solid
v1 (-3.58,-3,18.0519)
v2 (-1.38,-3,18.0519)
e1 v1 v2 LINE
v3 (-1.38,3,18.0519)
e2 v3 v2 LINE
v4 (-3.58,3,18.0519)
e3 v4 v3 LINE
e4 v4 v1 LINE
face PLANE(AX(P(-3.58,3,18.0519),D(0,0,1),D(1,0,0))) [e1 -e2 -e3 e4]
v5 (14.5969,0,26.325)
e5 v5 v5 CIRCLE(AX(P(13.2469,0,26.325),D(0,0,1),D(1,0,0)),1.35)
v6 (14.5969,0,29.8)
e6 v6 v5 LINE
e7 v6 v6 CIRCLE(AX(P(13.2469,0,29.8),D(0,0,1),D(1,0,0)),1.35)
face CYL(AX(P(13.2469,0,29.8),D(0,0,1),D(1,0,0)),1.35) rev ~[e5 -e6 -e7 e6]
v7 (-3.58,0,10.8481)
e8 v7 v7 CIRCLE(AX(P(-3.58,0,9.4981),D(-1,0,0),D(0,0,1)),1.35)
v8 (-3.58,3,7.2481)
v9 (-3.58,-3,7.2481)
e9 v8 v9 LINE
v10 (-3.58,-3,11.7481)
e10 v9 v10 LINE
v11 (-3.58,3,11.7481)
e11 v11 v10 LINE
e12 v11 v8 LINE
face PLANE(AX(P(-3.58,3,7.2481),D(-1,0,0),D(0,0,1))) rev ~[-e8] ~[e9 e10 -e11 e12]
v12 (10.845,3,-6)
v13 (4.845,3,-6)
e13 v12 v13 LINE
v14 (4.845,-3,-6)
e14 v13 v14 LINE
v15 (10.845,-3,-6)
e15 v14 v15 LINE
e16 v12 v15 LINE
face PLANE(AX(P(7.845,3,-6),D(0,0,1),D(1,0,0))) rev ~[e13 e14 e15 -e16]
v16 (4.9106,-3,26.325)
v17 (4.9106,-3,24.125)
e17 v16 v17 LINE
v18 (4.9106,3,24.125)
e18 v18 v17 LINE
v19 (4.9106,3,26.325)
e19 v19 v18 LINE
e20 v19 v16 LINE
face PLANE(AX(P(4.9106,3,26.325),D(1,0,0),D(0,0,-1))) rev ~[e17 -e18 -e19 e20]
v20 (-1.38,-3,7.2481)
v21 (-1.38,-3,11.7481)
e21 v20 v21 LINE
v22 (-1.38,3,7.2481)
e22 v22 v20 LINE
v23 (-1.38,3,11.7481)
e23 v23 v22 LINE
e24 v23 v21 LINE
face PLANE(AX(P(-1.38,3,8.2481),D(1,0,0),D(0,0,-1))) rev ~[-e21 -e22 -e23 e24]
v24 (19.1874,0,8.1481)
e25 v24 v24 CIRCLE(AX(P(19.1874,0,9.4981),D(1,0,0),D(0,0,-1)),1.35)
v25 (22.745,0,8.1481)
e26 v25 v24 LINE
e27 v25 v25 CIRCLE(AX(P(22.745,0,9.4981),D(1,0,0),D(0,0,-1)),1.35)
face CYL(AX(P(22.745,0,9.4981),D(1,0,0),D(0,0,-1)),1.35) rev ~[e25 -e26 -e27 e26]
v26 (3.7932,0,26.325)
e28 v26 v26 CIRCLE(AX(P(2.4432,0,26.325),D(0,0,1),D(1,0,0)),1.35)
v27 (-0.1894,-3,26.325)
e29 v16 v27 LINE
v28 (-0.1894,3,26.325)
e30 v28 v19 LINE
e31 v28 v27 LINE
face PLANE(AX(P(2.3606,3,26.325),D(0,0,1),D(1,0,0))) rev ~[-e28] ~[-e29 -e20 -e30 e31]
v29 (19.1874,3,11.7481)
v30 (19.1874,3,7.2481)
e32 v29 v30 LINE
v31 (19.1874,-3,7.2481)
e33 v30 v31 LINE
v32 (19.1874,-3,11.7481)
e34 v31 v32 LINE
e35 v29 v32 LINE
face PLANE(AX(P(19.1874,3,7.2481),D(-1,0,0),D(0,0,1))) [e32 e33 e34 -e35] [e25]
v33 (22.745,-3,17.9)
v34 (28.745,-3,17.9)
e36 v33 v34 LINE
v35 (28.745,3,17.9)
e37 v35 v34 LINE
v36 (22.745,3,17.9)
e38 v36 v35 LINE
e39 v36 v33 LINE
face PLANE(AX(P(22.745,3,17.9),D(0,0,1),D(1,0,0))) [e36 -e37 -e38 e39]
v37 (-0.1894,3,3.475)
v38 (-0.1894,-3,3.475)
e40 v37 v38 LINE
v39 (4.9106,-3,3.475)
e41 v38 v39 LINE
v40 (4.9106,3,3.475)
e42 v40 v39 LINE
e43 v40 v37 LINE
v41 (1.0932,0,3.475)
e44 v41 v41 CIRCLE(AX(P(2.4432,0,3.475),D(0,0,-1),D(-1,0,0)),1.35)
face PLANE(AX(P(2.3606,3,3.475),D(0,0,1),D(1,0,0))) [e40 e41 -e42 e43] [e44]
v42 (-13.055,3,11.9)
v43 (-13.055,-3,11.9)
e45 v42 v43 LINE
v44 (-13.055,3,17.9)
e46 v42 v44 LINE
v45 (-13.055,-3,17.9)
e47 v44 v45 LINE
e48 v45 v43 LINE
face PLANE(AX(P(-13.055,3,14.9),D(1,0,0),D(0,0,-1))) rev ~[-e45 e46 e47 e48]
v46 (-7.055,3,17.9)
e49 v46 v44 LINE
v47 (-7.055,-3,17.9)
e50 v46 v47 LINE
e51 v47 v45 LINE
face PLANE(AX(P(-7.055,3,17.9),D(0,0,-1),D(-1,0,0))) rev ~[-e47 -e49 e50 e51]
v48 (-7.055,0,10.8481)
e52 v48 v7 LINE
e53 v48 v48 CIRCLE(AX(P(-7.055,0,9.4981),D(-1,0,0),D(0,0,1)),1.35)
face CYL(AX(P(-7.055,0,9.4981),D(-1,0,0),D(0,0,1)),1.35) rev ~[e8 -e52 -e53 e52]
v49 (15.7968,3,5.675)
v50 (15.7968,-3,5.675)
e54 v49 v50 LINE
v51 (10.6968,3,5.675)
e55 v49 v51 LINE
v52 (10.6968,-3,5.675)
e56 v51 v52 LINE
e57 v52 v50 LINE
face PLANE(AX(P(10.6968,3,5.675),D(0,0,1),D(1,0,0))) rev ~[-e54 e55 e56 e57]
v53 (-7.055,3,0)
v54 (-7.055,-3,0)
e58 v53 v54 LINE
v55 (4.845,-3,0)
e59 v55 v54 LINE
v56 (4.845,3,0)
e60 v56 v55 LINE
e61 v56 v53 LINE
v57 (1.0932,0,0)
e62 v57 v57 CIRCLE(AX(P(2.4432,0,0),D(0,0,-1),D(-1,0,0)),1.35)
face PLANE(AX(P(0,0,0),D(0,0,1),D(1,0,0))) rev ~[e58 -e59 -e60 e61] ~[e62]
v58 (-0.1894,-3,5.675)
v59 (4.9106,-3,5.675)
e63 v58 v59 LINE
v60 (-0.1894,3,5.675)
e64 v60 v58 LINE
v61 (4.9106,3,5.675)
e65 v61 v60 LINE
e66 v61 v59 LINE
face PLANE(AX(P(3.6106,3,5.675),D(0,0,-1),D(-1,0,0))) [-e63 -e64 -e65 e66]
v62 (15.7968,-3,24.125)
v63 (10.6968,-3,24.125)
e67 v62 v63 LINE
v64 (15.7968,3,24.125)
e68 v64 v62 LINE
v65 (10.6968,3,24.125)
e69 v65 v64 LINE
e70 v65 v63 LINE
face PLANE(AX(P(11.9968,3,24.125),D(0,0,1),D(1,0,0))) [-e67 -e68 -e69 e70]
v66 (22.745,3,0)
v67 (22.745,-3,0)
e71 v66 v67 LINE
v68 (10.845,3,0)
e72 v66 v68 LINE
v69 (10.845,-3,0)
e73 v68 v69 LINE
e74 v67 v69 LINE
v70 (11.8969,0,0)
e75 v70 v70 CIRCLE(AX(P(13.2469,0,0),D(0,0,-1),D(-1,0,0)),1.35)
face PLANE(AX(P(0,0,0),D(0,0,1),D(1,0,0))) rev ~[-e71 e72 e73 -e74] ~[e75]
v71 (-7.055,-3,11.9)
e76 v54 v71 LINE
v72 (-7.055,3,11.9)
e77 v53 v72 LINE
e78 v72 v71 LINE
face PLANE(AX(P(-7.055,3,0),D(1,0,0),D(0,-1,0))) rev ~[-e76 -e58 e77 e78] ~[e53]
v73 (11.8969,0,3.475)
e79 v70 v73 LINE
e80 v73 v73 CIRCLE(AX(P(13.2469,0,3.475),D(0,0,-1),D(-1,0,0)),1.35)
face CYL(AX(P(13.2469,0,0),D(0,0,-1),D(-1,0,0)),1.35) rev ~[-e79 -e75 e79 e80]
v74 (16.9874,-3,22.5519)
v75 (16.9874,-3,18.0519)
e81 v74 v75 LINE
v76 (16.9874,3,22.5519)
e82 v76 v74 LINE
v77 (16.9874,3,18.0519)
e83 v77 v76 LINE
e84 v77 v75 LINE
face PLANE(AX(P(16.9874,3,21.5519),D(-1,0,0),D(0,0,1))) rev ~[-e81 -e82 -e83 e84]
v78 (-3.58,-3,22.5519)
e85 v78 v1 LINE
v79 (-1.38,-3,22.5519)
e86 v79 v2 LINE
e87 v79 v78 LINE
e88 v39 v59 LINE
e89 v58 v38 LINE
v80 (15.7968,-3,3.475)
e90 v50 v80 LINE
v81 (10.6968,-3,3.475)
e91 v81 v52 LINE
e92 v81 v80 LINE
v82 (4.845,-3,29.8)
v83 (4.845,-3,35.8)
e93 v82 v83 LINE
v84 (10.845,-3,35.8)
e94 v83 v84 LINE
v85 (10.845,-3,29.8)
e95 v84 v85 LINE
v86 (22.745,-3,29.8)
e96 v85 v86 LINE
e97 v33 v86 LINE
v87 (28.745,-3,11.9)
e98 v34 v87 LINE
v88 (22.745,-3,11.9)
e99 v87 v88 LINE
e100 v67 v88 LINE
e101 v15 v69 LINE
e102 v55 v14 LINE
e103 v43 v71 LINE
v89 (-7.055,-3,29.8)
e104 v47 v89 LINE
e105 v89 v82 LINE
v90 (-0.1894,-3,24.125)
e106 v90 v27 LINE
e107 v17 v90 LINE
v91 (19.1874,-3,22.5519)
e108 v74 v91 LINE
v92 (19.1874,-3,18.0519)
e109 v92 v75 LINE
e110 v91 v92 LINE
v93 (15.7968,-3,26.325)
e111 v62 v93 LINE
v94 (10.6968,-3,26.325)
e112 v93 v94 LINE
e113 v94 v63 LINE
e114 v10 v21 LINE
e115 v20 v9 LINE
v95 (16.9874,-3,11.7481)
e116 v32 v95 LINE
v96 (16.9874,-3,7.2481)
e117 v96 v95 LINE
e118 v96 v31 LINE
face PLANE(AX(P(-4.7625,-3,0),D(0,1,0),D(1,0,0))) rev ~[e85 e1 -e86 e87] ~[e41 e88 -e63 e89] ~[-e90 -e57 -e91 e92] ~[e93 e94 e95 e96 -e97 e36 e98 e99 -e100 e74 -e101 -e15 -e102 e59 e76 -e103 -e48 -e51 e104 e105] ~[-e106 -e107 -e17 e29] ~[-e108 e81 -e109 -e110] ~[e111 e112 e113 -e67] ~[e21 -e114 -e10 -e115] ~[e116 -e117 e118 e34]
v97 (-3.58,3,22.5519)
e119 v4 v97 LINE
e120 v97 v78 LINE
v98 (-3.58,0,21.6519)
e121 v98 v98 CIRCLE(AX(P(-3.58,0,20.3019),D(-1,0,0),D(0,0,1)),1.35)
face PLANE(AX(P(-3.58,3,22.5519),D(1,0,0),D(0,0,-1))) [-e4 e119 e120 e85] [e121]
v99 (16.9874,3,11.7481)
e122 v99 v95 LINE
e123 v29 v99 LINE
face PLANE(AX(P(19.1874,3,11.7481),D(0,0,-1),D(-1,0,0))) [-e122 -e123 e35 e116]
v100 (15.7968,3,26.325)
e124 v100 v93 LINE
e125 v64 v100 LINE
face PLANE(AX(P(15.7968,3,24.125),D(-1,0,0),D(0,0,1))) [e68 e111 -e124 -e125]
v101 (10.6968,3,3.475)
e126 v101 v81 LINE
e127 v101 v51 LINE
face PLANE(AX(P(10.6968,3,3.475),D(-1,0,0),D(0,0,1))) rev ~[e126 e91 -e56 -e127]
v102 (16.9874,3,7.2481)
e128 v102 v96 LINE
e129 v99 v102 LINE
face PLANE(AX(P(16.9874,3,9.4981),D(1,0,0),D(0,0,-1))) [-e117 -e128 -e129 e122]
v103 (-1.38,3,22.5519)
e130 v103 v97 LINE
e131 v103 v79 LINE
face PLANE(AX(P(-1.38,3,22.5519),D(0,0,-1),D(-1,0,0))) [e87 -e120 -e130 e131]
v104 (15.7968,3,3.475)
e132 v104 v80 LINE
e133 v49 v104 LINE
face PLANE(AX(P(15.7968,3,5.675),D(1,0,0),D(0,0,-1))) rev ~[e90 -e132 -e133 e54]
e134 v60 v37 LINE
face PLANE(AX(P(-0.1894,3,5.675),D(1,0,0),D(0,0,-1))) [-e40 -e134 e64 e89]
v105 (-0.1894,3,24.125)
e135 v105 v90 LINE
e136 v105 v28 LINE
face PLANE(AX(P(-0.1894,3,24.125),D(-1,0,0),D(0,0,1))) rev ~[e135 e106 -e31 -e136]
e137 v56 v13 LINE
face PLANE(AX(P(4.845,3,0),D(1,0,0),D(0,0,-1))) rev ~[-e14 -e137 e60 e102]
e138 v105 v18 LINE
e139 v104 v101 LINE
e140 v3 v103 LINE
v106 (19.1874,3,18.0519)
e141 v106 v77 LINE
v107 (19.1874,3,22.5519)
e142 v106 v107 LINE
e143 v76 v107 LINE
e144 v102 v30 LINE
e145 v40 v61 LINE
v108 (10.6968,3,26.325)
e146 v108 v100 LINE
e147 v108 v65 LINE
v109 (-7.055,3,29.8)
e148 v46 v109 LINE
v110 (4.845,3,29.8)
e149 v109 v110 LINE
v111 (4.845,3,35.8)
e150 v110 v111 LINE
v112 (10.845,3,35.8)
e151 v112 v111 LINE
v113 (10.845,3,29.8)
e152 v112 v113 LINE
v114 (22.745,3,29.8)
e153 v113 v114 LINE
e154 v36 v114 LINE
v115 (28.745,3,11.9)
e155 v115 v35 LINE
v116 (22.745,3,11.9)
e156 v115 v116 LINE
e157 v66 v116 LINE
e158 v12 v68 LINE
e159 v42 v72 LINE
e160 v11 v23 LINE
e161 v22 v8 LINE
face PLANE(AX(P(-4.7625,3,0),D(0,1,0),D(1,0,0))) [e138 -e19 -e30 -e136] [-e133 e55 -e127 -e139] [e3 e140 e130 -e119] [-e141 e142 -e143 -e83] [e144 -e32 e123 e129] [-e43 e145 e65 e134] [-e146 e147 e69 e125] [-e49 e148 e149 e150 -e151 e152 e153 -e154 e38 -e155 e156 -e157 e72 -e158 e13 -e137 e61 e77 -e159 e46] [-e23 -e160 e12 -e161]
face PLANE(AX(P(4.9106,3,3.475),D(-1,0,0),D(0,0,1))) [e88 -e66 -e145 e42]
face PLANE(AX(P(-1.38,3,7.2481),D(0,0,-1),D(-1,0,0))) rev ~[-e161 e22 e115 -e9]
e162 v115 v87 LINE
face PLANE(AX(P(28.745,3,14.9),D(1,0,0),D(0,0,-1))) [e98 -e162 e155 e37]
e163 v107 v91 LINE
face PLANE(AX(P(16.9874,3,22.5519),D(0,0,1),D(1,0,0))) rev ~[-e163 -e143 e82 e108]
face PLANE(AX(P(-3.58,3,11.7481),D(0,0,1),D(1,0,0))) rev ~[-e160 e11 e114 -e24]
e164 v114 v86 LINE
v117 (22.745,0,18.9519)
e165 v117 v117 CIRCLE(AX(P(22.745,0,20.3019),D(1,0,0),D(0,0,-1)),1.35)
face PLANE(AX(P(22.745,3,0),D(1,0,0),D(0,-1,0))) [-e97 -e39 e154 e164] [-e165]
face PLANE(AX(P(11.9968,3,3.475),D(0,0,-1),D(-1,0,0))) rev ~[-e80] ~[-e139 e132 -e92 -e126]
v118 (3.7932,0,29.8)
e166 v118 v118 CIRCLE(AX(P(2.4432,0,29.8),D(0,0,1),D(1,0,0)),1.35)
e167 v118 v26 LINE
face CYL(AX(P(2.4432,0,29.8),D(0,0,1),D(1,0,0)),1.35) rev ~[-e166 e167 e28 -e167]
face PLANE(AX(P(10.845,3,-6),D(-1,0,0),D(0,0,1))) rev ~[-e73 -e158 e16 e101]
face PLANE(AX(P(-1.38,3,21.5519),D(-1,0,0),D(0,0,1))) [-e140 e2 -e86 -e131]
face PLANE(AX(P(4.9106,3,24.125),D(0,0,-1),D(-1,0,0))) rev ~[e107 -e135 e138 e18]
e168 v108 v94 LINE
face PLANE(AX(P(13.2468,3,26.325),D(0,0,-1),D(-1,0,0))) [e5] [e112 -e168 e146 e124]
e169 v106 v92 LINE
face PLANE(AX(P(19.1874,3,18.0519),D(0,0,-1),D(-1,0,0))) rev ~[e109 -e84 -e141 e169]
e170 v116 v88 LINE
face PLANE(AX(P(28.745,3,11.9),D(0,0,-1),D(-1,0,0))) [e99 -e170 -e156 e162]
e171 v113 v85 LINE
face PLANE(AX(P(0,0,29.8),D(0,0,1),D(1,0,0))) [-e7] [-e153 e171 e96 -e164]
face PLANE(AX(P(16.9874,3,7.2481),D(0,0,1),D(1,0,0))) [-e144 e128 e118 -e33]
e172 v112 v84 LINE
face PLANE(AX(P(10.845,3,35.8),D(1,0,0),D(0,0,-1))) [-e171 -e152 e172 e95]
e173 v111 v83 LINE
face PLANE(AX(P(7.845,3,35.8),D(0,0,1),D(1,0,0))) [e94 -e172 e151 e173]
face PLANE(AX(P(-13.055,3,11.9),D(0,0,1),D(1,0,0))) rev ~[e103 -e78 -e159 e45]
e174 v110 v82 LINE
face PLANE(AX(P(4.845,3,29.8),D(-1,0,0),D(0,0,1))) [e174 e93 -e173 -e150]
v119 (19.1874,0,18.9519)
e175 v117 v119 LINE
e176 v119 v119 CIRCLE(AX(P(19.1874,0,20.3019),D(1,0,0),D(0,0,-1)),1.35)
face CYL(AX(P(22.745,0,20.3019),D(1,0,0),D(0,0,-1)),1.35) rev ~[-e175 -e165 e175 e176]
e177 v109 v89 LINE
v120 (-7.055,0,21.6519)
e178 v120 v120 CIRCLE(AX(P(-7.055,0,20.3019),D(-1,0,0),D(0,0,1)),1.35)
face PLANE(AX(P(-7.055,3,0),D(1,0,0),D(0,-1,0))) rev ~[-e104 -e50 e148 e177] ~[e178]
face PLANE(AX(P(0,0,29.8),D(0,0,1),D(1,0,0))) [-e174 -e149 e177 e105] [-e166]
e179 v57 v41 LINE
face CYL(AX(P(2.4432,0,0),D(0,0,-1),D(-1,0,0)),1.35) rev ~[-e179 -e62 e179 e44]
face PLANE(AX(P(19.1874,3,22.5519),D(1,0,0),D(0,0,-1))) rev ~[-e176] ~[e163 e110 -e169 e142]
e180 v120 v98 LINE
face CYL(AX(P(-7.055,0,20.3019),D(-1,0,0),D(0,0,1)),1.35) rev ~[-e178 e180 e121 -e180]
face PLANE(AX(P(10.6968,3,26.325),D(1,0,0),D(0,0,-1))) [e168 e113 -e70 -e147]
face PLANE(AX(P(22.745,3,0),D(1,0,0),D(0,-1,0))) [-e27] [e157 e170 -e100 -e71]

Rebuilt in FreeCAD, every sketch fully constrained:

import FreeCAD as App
import Part
import Sketcher
from FreeCAD import Vector
Q = App.Units.Quantity

doc = App.newDocument("Part")
body = doc.addObject("PartDesign::Body", "Body")

# Sketch on XY plane
sketch1 = body.newObject("Sketcher::SketchObject", "Sketch")
sketch1.AttachmentSupport = (doc.getObject("XY_Plane"), [""])
sketch1.MapMode = "FlatFace"
sketch1.addGeometry([
    Part.LineSegment(Vector(-7.055, 3, 0), Vector(-7.055, -3, 0)),
    Part.LineSegment(Vector(-7.055, -3, 0), Vector(22.745, -3, 0)),
    Part.LineSegment(Vector(22.745, -3, 0), Vector(22.745, 3, 0)),
    Part.LineSegment(Vector(22.745, 3, 0), Vector(-7.055, 3, 0)),
], False)
sketch1.addConstraint([
    Sketcher.Constraint("Coincident", 0, 2, 1, 1),
    Sketcher.Constraint("Coincident", 1, 2, 2, 1),
    Sketcher.Constraint("Coincident", 2, 2, 3, 1),
    Sketcher.Constraint("Coincident", 3, 2, 0, 1),
    Sketcher.Constraint("Vertical", 0),
    Sketcher.Constraint("Horizontal", 1),
    Sketcher.Constraint("Vertical", 2),
    Sketcher.Constraint("Horizontal", 3),
    Sketcher.Constraint("DistanceY", 0, 2, 0, 1, Q("6 mm")),
    Sketcher.Constraint("DistanceX", 1, 1, 1, 2, Q("29.8 mm")),
    Sketcher.Constraint("DistanceY", 0, 2, -1, 1, Q("3 mm")),
    Sketcher.Constraint("DistanceX", 0, 2, -1, 1, Q("7.055 mm")),
])
pad1 = body.newObject("PartDesign::Pad", "Pad")
pad1.Profile = sketch1
pad1.Length = 29.8

# Sketch on XZ plane
sketch2 = body.newObject("Sketcher::SketchObject", "Sketch001")
sketch2.AttachmentSupport = (doc.getObject("XZ_Plane"), [""])
sketch2.MapMode = "FlatFace"
sketch2.AttachmentOffset = App.Placement(Vector(0, 0, -3), App.Rotation())
sketch2.addGeometry([
    Part.LineSegment(Vector(10.6968, 5.675, 0), Vector(15.7968, 5.675, 0)),  # 0
    Part.LineSegment(Vector(15.7968, 5.675, 0), Vector(15.7968, 3.475, 0)),  # 1
    Part.LineSegment(Vector(15.7968, 3.475, 0), Vector(10.6968, 3.475, 0)),  # 2
    Part.LineSegment(Vector(10.6968, 3.475, 0), Vector(10.6968, 5.675, 0)),  # 3
    Part.LineSegment(Vector(10.6968, 24.125, 0), Vector(10.6968, 26.325, 0)),  # 4
    Part.LineSegment(Vector(10.6968, 26.325, 0), Vector(15.7968, 26.325, 0)),  # 5
    Part.LineSegment(Vector(15.7968, 26.325, 0), Vector(15.7968, 24.125, 0)),  # 6
    Part.LineSegment(Vector(15.7968, 24.125, 0), Vector(10.6968, 24.125, 0)),  # 7
    Part.LineSegment(Vector(4.9106, 5.675, 0), Vector(4.9106, 3.475, 0)),  # 8
    Part.LineSegment(Vector(4.9106, 3.475, 0), Vector(-0.1894, 3.475, 0)),  # 9
    Part.LineSegment(Vector(-0.1894, 3.475, 0), Vector(-0.1894, 5.675, 0)),  # 10
    Part.LineSegment(Vector(-0.1894, 5.675, 0), Vector(4.9106, 5.675, 0)),  # 11
    Part.LineSegment(Vector(4.9106, 24.125, 0), Vector(-0.1894, 24.125, 0)),  # 12
    Part.LineSegment(Vector(-0.1894, 24.125, 0), Vector(-0.1894, 26.325, 0)),  # 13
    Part.LineSegment(Vector(-0.1894, 26.325, 0), Vector(4.9106, 26.325, 0)),  # 14
    Part.LineSegment(Vector(4.9106, 26.325, 0), Vector(4.9106, 24.125, 0)),  # 15
    Part.LineSegment(Vector(-1.38, 22.5519, 0), Vector(-1.38, 18.0519, 0)),  # 16
    Part.LineSegment(Vector(-1.38, 18.0519, 0), Vector(-3.58, 18.0519, 0)),  # 17
    Part.LineSegment(Vector(-3.58, 18.0519, 0), Vector(-3.58, 22.5519, 0)),  # 18
    Part.LineSegment(Vector(-3.58, 22.5519, 0), Vector(-1.38, 22.5519, 0)),  # 19
    Part.LineSegment(Vector(-3.58, 7.2481, 0), Vector(-3.58, 11.7481, 0)),  # 20
    Part.LineSegment(Vector(-3.58, 11.7481, 0), Vector(-1.38, 11.7481, 0)),  # 21
    Part.LineSegment(Vector(-1.38, 11.7481, 0), Vector(-1.38, 7.2481, 0)),  # 22
    Part.LineSegment(Vector(-1.38, 7.2481, 0), Vector(-3.58, 7.2481, 0)),  # 23
    Part.LineSegment(Vector(19.1874, 22.5519, 0), Vector(19.1874, 18.0519, 0)),  # 24
    Part.LineSegment(Vector(19.1874, 18.0519, 0), Vector(16.9874, 18.0519, 0)),  # 25
    Part.LineSegment(Vector(16.9874, 18.0519, 0), Vector(16.9874, 22.5519, 0)),  # 26
    Part.LineSegment(Vector(16.9874, 22.5519, 0), Vector(19.1874, 22.5519, 0)),  # 27
    Part.LineSegment(Vector(16.9874, 11.7481, 0), Vector(19.1874, 11.7481, 0)),  # 28
    Part.LineSegment(Vector(19.1874, 11.7481, 0), Vector(19.1874, 7.2481, 0)),  # 29
    Part.LineSegment(Vector(19.1874, 7.2481, 0), Vector(16.9874, 7.2481, 0)),  # 30
    Part.LineSegment(Vector(16.9874, 7.2481, 0), Vector(16.9874, 11.7481, 0)),  # 31
], False)
sketch2.addConstraint([
    Sketcher.Constraint("Coincident", 0, 2, 1, 1),
    Sketcher.Constraint("Coincident", 1, 2, 2, 1),
    Sketcher.Constraint("Coincident", 2, 2, 3, 1),
    Sketcher.Constraint("Coincident", 3, 2, 0, 1),
    Sketcher.Constraint("Coincident", 4, 2, 5, 1),
    Sketcher.Constraint("Coincident", 5, 2, 6, 1),
    Sketcher.Constraint("Coincident", 6, 2, 7, 1),
    Sketcher.Constraint("Coincident", 7, 2, 4, 1),
    Sketcher.Constraint("Coincident", 8, 2, 9, 1),
    Sketcher.Constraint("Coincident", 9, 2, 10, 1),
    Sketcher.Constraint("Coincident", 10, 2, 11, 1),
    Sketcher.Constraint("Coincident", 11, 2, 8, 1),
    Sketcher.Constraint("Coincident", 12, 2, 13, 1),
    Sketcher.Constraint("Coincident", 13, 2, 14, 1),
    Sketcher.Constraint("Coincident", 14, 2, 15, 1),
    Sketcher.Constraint("Coincident", 15, 2, 12, 1),
    Sketcher.Constraint("Coincident", 16, 2, 17, 1),
    Sketcher.Constraint("Coincident", 17, 2, 18, 1),
    Sketcher.Constraint("Coincident", 18, 2, 19, 1),
    Sketcher.Constraint("Coincident", 19, 2, 16, 1),
    Sketcher.Constraint("Coincident", 20, 2, 21, 1),
    Sketcher.Constraint("Coincident", 21, 2, 22, 1),
    Sketcher.Constraint("Coincident", 22, 2, 23, 1),
    Sketcher.Constraint("Coincident", 23, 2, 20, 1),
    Sketcher.Constraint("Coincident", 24, 2, 25, 1),
    Sketcher.Constraint("Coincident", 25, 2, 26, 1),
    Sketcher.Constraint("Coincident", 26, 2, 27, 1),
    Sketcher.Constraint("Coincident", 27, 2, 24, 1),
    Sketcher.Constraint("Coincident", 28, 2, 29, 1),
    Sketcher.Constraint("Coincident", 29, 2, 30, 1),
    Sketcher.Constraint("Coincident", 30, 2, 31, 1),
    Sketcher.Constraint("Coincident", 31, 2, 28, 1),
    Sketcher.Constraint("Horizontal", 0),
    Sketcher.Constraint("Vertical", 1),
    Sketcher.Constraint("Horizontal", 2),
    Sketcher.Constraint("Vertical", 3),
    Sketcher.Constraint("Vertical", 4),
    Sketcher.Constraint("Horizontal", 5),
    Sketcher.Constraint("Vertical", 6),
    Sketcher.Constraint("Horizontal", 7),
    Sketcher.Constraint("Vertical", 8),
    Sketcher.Constraint("Horizontal", 9),
    Sketcher.Constraint("Vertical", 10),
    Sketcher.Constraint("Horizontal", 11),
    Sketcher.Constraint("Horizontal", 12),
    Sketcher.Constraint("Vertical", 13),
    Sketcher.Constraint("Horizontal", 14),
    Sketcher.Constraint("Vertical", 15),
    Sketcher.Constraint("Vertical", 16),
    Sketcher.Constraint("Horizontal", 17),
    Sketcher.Constraint("Vertical", 18),
    Sketcher.Constraint("Horizontal", 19),
    Sketcher.Constraint("Vertical", 20),
    Sketcher.Constraint("Horizontal", 21),
    Sketcher.Constraint("Vertical", 22),
    Sketcher.Constraint("Horizontal", 23),
    Sketcher.Constraint("Vertical", 24),
    Sketcher.Constraint("Horizontal", 25),
    Sketcher.Constraint("Vertical", 26),
    Sketcher.Constraint("Horizontal", 27),
    Sketcher.Constraint("Horizontal", 28),
    Sketcher.Constraint("Vertical", 29),
    Sketcher.Constraint("Horizontal", 30),
    Sketcher.Constraint("Vertical", 31),
    Sketcher.Constraint("Horizontal", 2, 2, 8, 2),
    Sketcher.Constraint("Horizontal", 3, 2, 10, 2),
    Sketcher.Constraint("Horizontal", 7, 2, 12, 2),
    Sketcher.Constraint("Horizontal", 5, 2, 13, 2),
    Sketcher.Constraint("Horizontal", 17, 2, 24, 2),
    Sketcher.Constraint("Horizontal", 19, 2, 26, 2),
    Sketcher.Constraint("Horizontal", 21, 2, 28, 2),
    Sketcher.Constraint("Horizontal", 23, 2, 29, 2),
    Sketcher.Constraint("Vertical", 3, 2, 4, 2),
    Sketcher.Constraint("Vertical", 1, 2, 5, 2),
    Sketcher.Constraint("Vertical", 10, 2, 12, 2),
    Sketcher.Constraint("Vertical", 11, 2, 14, 2),
    Sketcher.Constraint("Vertical", 18, 2, 20, 2),
    Sketcher.Constraint("Vertical", 19, 2, 21, 2),
    Sketcher.Constraint("Vertical", 27, 2, 28, 2),
    Sketcher.Constraint("Vertical", 26, 2, 30, 2),
    Sketcher.Constraint("Equal", 7, 9),
    Sketcher.Constraint("Equal", 23, 25),
    Sketcher.Constraint("Equal", 30, 1),
    Sketcher.Constraint("Equal", 3, 4),
    Sketcher.Constraint("Equal", 18, 20),
    Sketcher.Constraint("DistanceX", 17, 2, 17, 1, Q("2.2 mm")),
    Sketcher.Constraint("DistanceX", 0, 1, 0, 2, Q("5.1 mm")),
    Sketcher.Constraint("DistanceY", 16, 2, 16, 1, Q("4.5 mm")),
    Sketcher.Constraint("DistanceX", 16, 2, -1, 1, Q("1.38 mm")),
    Sketcher.Constraint("DistanceY", 3, 2, 4, 2, Q("20.65 mm")),
    Sketcher.Constraint("DistanceY", -1, 1, 0, 2, Q("5.675 mm")),
    Sketcher.Constraint("DistanceY", -1, 1, 16, 2, Q("18.052 mm")),
    Sketcher.Constraint("DistanceY", -1, 1, 20, 2, Q("11.748 mm")),
    Sketcher.Constraint("DistanceX", -1, 1, 0, 2, Q("15.7968 mm")),
    Sketcher.Constraint("DistanceX", -1, 1, 8, 2, Q("4.9106 mm")),
    Sketcher.Constraint("DistanceX", -1, 1, 24, 2, Q("19.1874 mm")),
])
pocket1 = body.newObject("PartDesign::Pocket", "Pocket")
pocket1.Profile = sketch2
pocket1.Length = 6
pocket1.Reversed = True

# Sketch on YZ plane
sketch3 = body.newObject("Sketcher::SketchObject", "Sketch002")
sketch3.AttachmentSupport = (doc.getObject("YZ_Plane"), [""])
sketch3.MapMode = "FlatFace"
sketch3.AttachmentOffset = App.Placement(Vector(0, 0, -7.055), App.Rotation())
sketch3.addGeometry([
    Part.Circle(Vector(0, 20.3019, 0), Vector(0, 0, 1), 1.35),
    Part.Circle(Vector(0, 9.4981, 0), Vector(0, 0, 1), 1.35),
], False)
sketch3.addConstraint([
    Sketcher.Constraint("Equal", 0, 1),
    Sketcher.Constraint("PointOnObject", 0, 3, -2),
    Sketcher.Constraint("PointOnObject", 1, 3, -2),
    Sketcher.Constraint("Diameter", 0, Q("2.7 mm")),
    Sketcher.Constraint("DistanceY", -1, 1, 0, 3, Q("20.302 mm")),
    Sketcher.Constraint("DistanceY", -1, 1, 1, 3, Q("9.498 mm")),
])
pocket2 = body.newObject("PartDesign::Pocket", "Pocket001")
pocket2.Profile = sketch3
pocket2.Length = 3.475
pocket2.Reversed = True

# Sketch on XY plane
sketch4 = body.newObject("Sketcher::SketchObject", "Sketch003")
sketch4.AttachmentSupport = (doc.getObject("XY_Plane"), [""])
sketch4.MapMode = "FlatFace"
sketch4.addGeometry([
    Part.Circle(Vector(13.2469, 0, 0), Vector(0, 0, 1), 1.35),
    Part.Circle(Vector(2.4432, 0, 0), Vector(0, 0, 1), 1.35),
], False)
sketch4.addConstraint([
    Sketcher.Constraint("Equal", 0, 1),
    Sketcher.Constraint("PointOnObject", 0, 3, -1),
    Sketcher.Constraint("PointOnObject", 1, 3, -1),
    Sketcher.Constraint("Diameter", 0, Q("2.7 mm")),
    Sketcher.Constraint("DistanceX", -1, 1, 0, 3, Q("13.247 mm")),
    Sketcher.Constraint("DistanceX", -1, 1, 1, 3, Q("2.4432 mm")),
])
pocket3 = body.newObject("PartDesign::Pocket", "Pocket002")
pocket3.Profile = sketch4
pocket3.Length = 3.475
pocket3.Reversed = True

# Sketch on YZ plane
sketch5 = body.newObject("Sketcher::SketchObject", "Sketch004")
sketch5.AttachmentSupport = (doc.getObject("YZ_Plane"), [""])
sketch5.MapMode = "FlatFace"
sketch5.AttachmentOffset = App.Placement(Vector(0, 0, 22.745), App.Rotation())
sketch5.addGeometry([
    Part.Circle(Vector(0, 20.3019, 0), Vector(0, 0, 1), 1.35),
    Part.Circle(Vector(0, 9.4981, 0), Vector(0, 0, 1), 1.35),
], False)
sketch5.addConstraint([
    Sketcher.Constraint("Equal", 0, 1),
    Sketcher.Constraint("PointOnObject", 0, 3, -2),
    Sketcher.Constraint("PointOnObject", 1, 3, -2),
    Sketcher.Constraint("Diameter", 0, Q("2.7 mm")),
    Sketcher.Constraint("DistanceY", -1, 1, 0, 3, Q("20.302 mm")),
    Sketcher.Constraint("DistanceY", -1, 1, 1, 3, Q("9.498 mm")),
])
pocket4 = body.newObject("PartDesign::Pocket", "Pocket003")
pocket4.Profile = sketch5
pocket4.Length = 3.5576

# Sketch on XY plane
sketch6 = body.newObject("Sketcher::SketchObject", "Sketch005")
sketch6.AttachmentSupport = (doc.getObject("XY_Plane"), [""])
sketch6.MapMode = "FlatFace"
sketch6.AttachmentOffset = App.Placement(Vector(0, 0, 29.8), App.Rotation())
sketch6.addGeometry([
    Part.Circle(Vector(2.4432, 0, 0), Vector(0, 0, 1), 1.35),
    Part.Circle(Vector(13.2469, 0, 0), Vector(0, 0, 1), 1.35),
], False)
sketch6.addConstraint([
    Sketcher.Constraint("Equal", 0, 1),
    Sketcher.Constraint("PointOnObject", 0, 3, -1),
    Sketcher.Constraint("PointOnObject", 1, 3, -1),
    Sketcher.Constraint("Diameter", 0, Q("2.7 mm")),
    Sketcher.Constraint("DistanceX", -1, 1, 1, 3, Q("13.247 mm")),
    Sketcher.Constraint("DistanceX", -1, 1, 0, 3, Q("2.4432 mm")),
])
pocket5 = body.newObject("PartDesign::Pocket", "Pocket004")
pocket5.Profile = sketch6
pocket5.Length = 3.475

# Sketch on XZ plane
sketch7 = body.newObject("Sketcher::SketchObject", "Sketch006")
sketch7.AttachmentSupport = (doc.getObject("XZ_Plane"), [""])
sketch7.MapMode = "FlatFace"
sketch7.AttachmentOffset = App.Placement(Vector(0, 0, -3), App.Rotation())
sketch7.addGeometry([
    Part.LineSegment(Vector(10.845, 0, 0), Vector(10.845, -6, 0)),  # 0
    Part.LineSegment(Vector(10.845, -6, 0), Vector(4.845, -6, 0)),  # 1
    Part.LineSegment(Vector(4.845, -6, 0), Vector(4.845, 0, 0)),  # 2
    Part.LineSegment(Vector(4.845, 0, 0), Vector(10.845, 0, 0)),  # 3
    Part.LineSegment(Vector(28.745, 11.9, 0), Vector(22.745, 11.9, 0)),  # 4
    Part.LineSegment(Vector(22.745, 11.9, 0), Vector(22.745, 17.9, 0)),  # 5
    Part.LineSegment(Vector(22.745, 17.9, 0), Vector(28.745, 17.9, 0)),  # 6
    Part.LineSegment(Vector(28.745, 17.9, 0), Vector(28.745, 11.9, 0)),  # 7
    Part.LineSegment(Vector(-7.055, 11.9, 0), Vector(-13.055, 11.9, 0)),  # 8
    Part.LineSegment(Vector(-13.055, 11.9, 0), Vector(-13.055, 17.9, 0)),  # 9
    Part.LineSegment(Vector(-13.055, 17.9, 0), Vector(-7.055, 17.9, 0)),  # 10
    Part.LineSegment(Vector(-7.055, 17.9, 0), Vector(-7.055, 11.9, 0)),  # 11
    Part.LineSegment(Vector(10.845, 35.8, 0), Vector(10.845, 29.8, 0)),  # 12
    Part.LineSegment(Vector(10.845, 29.8, 0), Vector(4.845, 29.8, 0)),  # 13
    Part.LineSegment(Vector(4.845, 29.8, 0), Vector(4.845, 35.8, 0)),  # 14
    Part.LineSegment(Vector(4.845, 35.8, 0), Vector(10.845, 35.8, 0)),  # 15
], False)
sketch7.addConstraint([
    Sketcher.Constraint("Coincident", 0, 2, 1, 1),
    Sketcher.Constraint("Coincident", 1, 2, 2, 1),
    Sketcher.Constraint("Coincident", 2, 2, 3, 1),
    Sketcher.Constraint("Coincident", 3, 2, 0, 1),
    Sketcher.Constraint("Coincident", 4, 2, 5, 1),
    Sketcher.Constraint("Coincident", 5, 2, 6, 1),
    Sketcher.Constraint("Coincident", 6, 2, 7, 1),
    Sketcher.Constraint("Coincident", 7, 2, 4, 1),
    Sketcher.Constraint("Coincident", 8, 2, 9, 1),
    Sketcher.Constraint("Coincident", 9, 2, 10, 1),
    Sketcher.Constraint("Coincident", 10, 2, 11, 1),
    Sketcher.Constraint("Coincident", 11, 2, 8, 1),
    Sketcher.Constraint("Coincident", 12, 2, 13, 1),
    Sketcher.Constraint("Coincident", 13, 2, 14, 1),
    Sketcher.Constraint("Coincident", 14, 2, 15, 1),
    Sketcher.Constraint("Coincident", 15, 2, 12, 1),
    Sketcher.Constraint("Vertical", 0),
    Sketcher.Constraint("Horizontal", 1),
    Sketcher.Constraint("Vertical", 2),
    Sketcher.Constraint("Horizontal", 3),
    Sketcher.Constraint("Horizontal", 4),
    Sketcher.Constraint("Vertical", 5),
    Sketcher.Constraint("Horizontal", 6),
    Sketcher.Constraint("Vertical", 7),
    Sketcher.Constraint("Horizontal", 8),
    Sketcher.Constraint("Vertical", 9),
    Sketcher.Constraint("Horizontal", 10),
    Sketcher.Constraint("Vertical", 11),
    Sketcher.Constraint("Vertical", 12),
    Sketcher.Constraint("Horizontal", 13),
    Sketcher.Constraint("Vertical", 14),
    Sketcher.Constraint("Horizontal", 15),
    Sketcher.Constraint("PointOnObject", 2, 2, -1),
    Sketcher.Constraint("Horizontal", 7, 2, 8, 2),
    Sketcher.Constraint("Horizontal", 6, 2, 9, 2),
    Sketcher.Constraint("Vertical", 3, 2, 12, 2),
    Sketcher.Constraint("Vertical", 2, 2, 13, 2),
    Sketcher.Constraint("Equal", 3, 4),
    Sketcher.Constraint("Equal", 6, 8),
    Sketcher.Constraint("Equal", 15, 0),
    Sketcher.Constraint("Equal", 2, 5),
    Sketcher.Constraint("Equal", 11, 12),
    Sketcher.Constraint("DistanceX", 1, 2, 1, 1, Q("6 mm")),
    Sketcher.Constraint("DistanceY", -1, 1, 4, 2, Q("11.9 mm")),
    Sketcher.Constraint("DistanceY", -1, 1, 12, 2, Q("29.8 mm")),
    Sketcher.Constraint("DistanceX", 3, 2, 4, 2, Q("11.9 mm")),
    Sketcher.Constraint("DistanceX", 8, 2, 2, 2, Q("17.9 mm")),
    Sketcher.Constraint("DistanceX", -1, 1, 0, 2, Q("10.845 mm")),
])
pad2 = body.newObject("PartDesign::Pad", "Pad001")
pad2.Profile = sketch7
pad2.Length = 6

doc.recompute()
